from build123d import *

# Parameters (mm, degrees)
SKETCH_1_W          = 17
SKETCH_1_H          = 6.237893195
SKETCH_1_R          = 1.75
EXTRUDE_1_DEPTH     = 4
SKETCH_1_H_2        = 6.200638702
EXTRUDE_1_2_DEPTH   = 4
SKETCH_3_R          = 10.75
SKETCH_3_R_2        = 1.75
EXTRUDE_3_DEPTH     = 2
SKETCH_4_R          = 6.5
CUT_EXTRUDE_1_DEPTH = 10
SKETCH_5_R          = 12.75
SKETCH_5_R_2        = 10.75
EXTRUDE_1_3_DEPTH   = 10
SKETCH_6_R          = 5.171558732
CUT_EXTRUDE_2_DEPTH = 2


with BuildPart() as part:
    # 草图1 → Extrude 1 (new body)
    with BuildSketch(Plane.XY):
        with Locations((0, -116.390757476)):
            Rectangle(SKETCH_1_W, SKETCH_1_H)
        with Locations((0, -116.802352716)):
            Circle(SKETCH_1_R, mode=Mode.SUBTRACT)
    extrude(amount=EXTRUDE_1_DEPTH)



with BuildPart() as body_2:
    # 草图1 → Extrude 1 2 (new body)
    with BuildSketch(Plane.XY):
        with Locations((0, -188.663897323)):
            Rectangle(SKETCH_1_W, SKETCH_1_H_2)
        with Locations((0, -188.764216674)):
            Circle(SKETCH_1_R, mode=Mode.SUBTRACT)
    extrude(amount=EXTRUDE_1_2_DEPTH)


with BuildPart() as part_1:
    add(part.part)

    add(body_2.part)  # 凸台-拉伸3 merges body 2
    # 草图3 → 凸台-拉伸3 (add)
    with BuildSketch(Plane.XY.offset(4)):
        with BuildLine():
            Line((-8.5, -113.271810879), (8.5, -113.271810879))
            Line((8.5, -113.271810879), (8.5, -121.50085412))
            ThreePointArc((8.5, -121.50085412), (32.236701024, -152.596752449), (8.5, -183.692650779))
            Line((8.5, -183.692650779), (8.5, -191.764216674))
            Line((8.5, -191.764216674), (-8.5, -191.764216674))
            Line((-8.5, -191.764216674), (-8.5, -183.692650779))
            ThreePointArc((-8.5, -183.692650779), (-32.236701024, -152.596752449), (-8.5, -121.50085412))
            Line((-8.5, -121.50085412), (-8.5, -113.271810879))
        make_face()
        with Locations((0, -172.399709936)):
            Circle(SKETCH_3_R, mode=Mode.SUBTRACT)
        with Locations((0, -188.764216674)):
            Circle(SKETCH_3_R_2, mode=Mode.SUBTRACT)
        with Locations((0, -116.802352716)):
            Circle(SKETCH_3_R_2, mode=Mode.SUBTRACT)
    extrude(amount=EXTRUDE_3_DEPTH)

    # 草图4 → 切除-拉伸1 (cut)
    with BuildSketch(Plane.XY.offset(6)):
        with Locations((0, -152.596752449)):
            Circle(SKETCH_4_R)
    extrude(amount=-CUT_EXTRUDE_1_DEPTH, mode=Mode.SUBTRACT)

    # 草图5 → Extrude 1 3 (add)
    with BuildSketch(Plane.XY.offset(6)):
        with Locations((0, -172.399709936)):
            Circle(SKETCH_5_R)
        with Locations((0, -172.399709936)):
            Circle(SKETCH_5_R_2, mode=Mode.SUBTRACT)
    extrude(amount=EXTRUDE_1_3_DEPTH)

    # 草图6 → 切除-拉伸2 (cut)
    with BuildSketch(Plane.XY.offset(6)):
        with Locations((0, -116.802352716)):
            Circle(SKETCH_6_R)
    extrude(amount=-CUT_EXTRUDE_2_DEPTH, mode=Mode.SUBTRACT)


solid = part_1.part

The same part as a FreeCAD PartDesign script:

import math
import FreeCAD as App
import Part
import Sketcher

doc = App.newDocument("Part")
params = doc.addObject("Spreadsheet::Sheet", "Params")
for row, (alias, value) in enumerate([
    ("sketch1_diameter", "3.5 mm"),
    ("sketch1_width", "17 mm"),
    ("pad1_length", "4 mm"),
    ("sketch2_diameter", "3.5 mm"),
    ("sketch2_width", "17 mm"),
    ("pad2_length", "4 mm"),
    ("sketch3_diameter", "3.5 mm"),
    ("sketch3_diameter2", "21.5 mm"),
    ("sketch3_width", "17 mm"),
    ("pad3_length", "2 mm"),
    ("sketch4_diameter", "13 mm"),
    ("pocket1_length", "10 mm"),
    ("sketch5_diameter", "25.5 mm"),
    ("sketch5_diameter2", "21.5 mm"),
    ("pad4_length", "10 mm"),
    ("pocket2_length", "2 mm"),
], start=1):
    params.set(f"A{row}", alias)
    params.set(f"B{row}", "=" + value)
    params.setAlias(f"B{row}", alias)

body = doc.addObject("PartDesign::Body", "Body")

sketch1 = body.newObject("Sketcher::SketchObject", "Sketch")
sketch1.AttachmentSupport = (doc.getObject("XY_Plane"), [""])
sketch1.MapMode = "FlatFace"
sketch1.addGeometry([
    Part.LineSegment(App.Vector(-8.5, -113.3, 0), App.Vector(-8.5, -119.5, 0)),
    Part.LineSegment(App.Vector(-8.5, -119.5, 0), App.Vector(8.5, -119.5, 0)),
    Part.LineSegment(App.Vector(8.5, -119.5, 0), App.Vector(8.5, -113.3, 0)),
    Part.LineSegment(App.Vector(8.5, -113.3, 0), App.Vector(-8.5, -113.3, 0)),
    Part.Circle(App.Vector(0, -116.8, 0), App.Vector(0, 0, 1), 1.8),
], False)
sketch1.addConstraint([
    Sketcher.Constraint("Coincident", 0, 2, 1, 1),
    Sketcher.Constraint("Coincident", 1, 2, 2, 1),
    Sketcher.Constraint("Coincident", 2, 2, 3, 1),
    Sketcher.Constraint("Coincident", 3, 2, 0, 1),
    Sketcher.Constraint("Vertical", 0),
    Sketcher.Constraint("Horizontal", 1),
    Sketcher.Constraint("Vertical", 2),
    Sketcher.Constraint("Horizontal", 3),
    Sketcher.Constraint("PointOnObject", 4, 3, -2),
    Sketcher.Constraint("Diameter", 4, 3.5),
    Sketcher.Constraint("DistanceX", 1, 1, 1, 2, 17.0),
    Sketcher.Constraint("DistanceX", 0, 2, -1, 1, 8.5),
    Sketcher.Constraint("DistanceY", 0, 2, 0, 1, 6.237893),
    Sketcher.Constraint("DistanceY", 2, 2, -1, 1, 113.271811),
    Sketcher.Constraint("DistanceY", 0, 2, 4, 3, 2.707351),
])
sketch1.setExpression("Constraints[9]", "Params.sketch1_diameter")
sketch1.setExpression("Constraints[10]", "Params.sketch1_width")
pad1 = body.newObject("PartDesign::Pad", "Pad")
pad1.Profile = sketch1
pad1.setExpression("Length", "Params.pad1_length")
body2 = doc.addObject("PartDesign::Body", "Body001")

sketch2 = body2.newObject("Sketcher::SketchObject", "Sketch001")
sketch2.AttachmentSupport = (doc.getObject("XY_Plane001"), [""])
sketch2.MapMode = "FlatFace"
sketch2.addGeometry([
    Part.LineSegment(App.Vector(-8.5, -185.6, 0), App.Vector(-8.5, -191.8, 0)),
    Part.LineSegment(App.Vector(-8.5, -191.8, 0), App.Vector(8.5, -191.8, 0)),
    Part.LineSegment(App.Vector(8.5, -191.8, 0), App.Vector(8.5, -185.6, 0)),
    Part.LineSegment(App.Vector(8.5, -185.6, 0), App.Vector(-8.5, -185.6, 0)),
    Part.Circle(App.Vector(0, -188.8, 0), App.Vector(0, 0, 1), 1.8),
], False)
sketch2.addConstraint([
    Sketcher.Constraint("Coincident", 0, 2, 1, 1),
    Sketcher.Constraint("Coincident", 1, 2, 2, 1),
    Sketcher.Constraint("Coincident", 2, 2, 3, 1),
    Sketcher.Constraint("Coincident", 3, 2, 0, 1),
    Sketcher.Constraint("Vertical", 0),
    Sketcher.Constraint("Horizontal", 1),
    Sketcher.Constraint("Vertical", 2),
    Sketcher.Constraint("Horizontal", 3),
    Sketcher.Constraint("PointOnObject", 4, 3, -2),
    Sketcher.Constraint("Diameter", 4, 3.5),
    Sketcher.Constraint("DistanceX", 1, 1, 1, 2, 17.0),
    Sketcher.Constraint("DistanceY", 0, 2, 4, 3, 3.0),
    Sketcher.Constraint("DistanceX", 0, 2, -1, 1, 8.5),
    Sketcher.Constraint("DistanceY", 0, 2, 0, 1, 6.200639),
    Sketcher.Constraint("DistanceY", 4, 3, -1, 1, 188.764217),
])
sketch2.setExpression("Constraints[9]", "Params.sketch2_diameter")
sketch2.setExpression("Constraints[10]", "Params.sketch2_width")
pad2 = body2.newObject("PartDesign::Pad", "Pad001")
pad2.Profile = sketch2
pad2.setExpression("Length", "Params.pad2_length")
body.AllowCompound = True
doc.recompute()

boolean = body.newObject("PartDesign::Boolean", "Boolean")
boolean.Type = "Fuse"
boolean.addObjects([body2])

sketch3 = body.newObject("Sketcher::SketchObject", "Sketch002")
sketch3.AttachmentSupport = (doc.getObject("XY_Plane"), [""])
sketch3.MapMode = "FlatFace"
sketch3.AttachmentOffset = App.Placement(App.Vector(0, 0, 4), App.Rotation())
sketch3.addGeometry([
    Part.LineSegment(App.Vector(8.5, -113.3, 0), App.Vector(-8.5, -113.3, 0)),
    Part.LineSegment(App.Vector(-8.5, -113.3, 0), App.Vector(-8.5, -121.5, 0)),
    Part.ArcOfCircle(Part.Circle(App.Vector(0, -152.6, 0), App.Vector(0, 0, 1), 32.2), math.radians(105), math.radians(255)),
    Part.LineSegment(App.Vector(-8.5, -183.7, 0), App.Vector(-8.5, -191.8, 0)),
    Part.LineSegment(App.Vector(-8.5, -191.8, 0), App.Vector(8.5, -191.8, 0)),
    Part.LineSegment(App.Vector(8.5, -191.8, 0), App.Vector(8.5, -183.7, 0)),
    Part.ArcOfCircle(Part.Circle(App.Vector(0, -152.6, 0), App.Vector(0, 0, 1), 32.2), math.radians(-75), math.radians(75)),
    Part.LineSegment(App.Vector(8.5, -121.5, 0), App.Vector(8.5, -113.3, 0)),
    Part.Circle(App.Vector(0, -188.8, 0), App.Vector(0, 0, 1), 1.8),
    Part.Circle(App.Vector(0, -172.4, 0), App.Vector(0, 0, 1), 10.8),
    Part.Circle(App.Vector(0, -116.8, 0), App.Vector(0, 0, 1), 1.8),
], False)
sketch3.addConstraint([
    Sketcher.Constraint("Coincident", 0, 2, 1, 1),
    Sketcher.Constraint("Coincident", 1, 2, 2, 1),
    Sketcher.Constraint("Coincident", 2, 2, 3, 1),
    Sketcher.Constraint("Coincident", 3, 2, 4, 1),
    Sketcher.Constraint("Coincident", 4, 2, 5, 1),
    Sketcher.Constraint("Coincident", 5, 2, 6, 1),
    Sketcher.Constraint("Coincident", 6, 2, 7, 1),
    Sketcher.Constraint("Coincident", 7, 2, 0, 1),
    Sketcher.Constraint("Horizontal", 0),
    Sketcher.Constraint("Vertical", 1),
    Sketcher.Constraint("Vertical", 3),
    Sketcher.Constraint("Horizontal", 4),
    Sketcher.Constraint("Vertical", 5),
    Sketcher.Constraint("Vertical", 7),
    Sketcher.Constraint("Coincident", 6, 3, 2, 3),
    Sketcher.Constraint("Equal", 2, 6),
    Sketcher.Constraint("Equal", 8, 10),
    Sketcher.Constraint("Symmetric", 2, 2, 5, 2, -2),
    Sketcher.Constraint("PointOnObject", 8, 3, -2),
    Sketcher.Constraint("PointOnObject", 9, 3, -2),
    Sketcher.Constraint("PointOnObject", 10, 3, -2),
    Sketcher.Constraint("Horizontal", 1, 2, 6, 2),
    Sketcher.Constraint("Vertical", 1, 2, 2, 2),
    Sketcher.Constraint("Diameter", 8, 3.5),
    Sketcher.Constraint("Diameter", 9, 21.5),
    Sketcher.Constraint("DistanceX", 0, 2, 0, 1, 17.0),
    Sketcher.Constraint("DistanceY", 3, 2, 8, 3, 3.0),
    Sketcher.Constraint("Radius", 2, 32.236701),
    Sketcher.Constraint("DistanceY", 2, 3, 10, 3, 35.7944),
    Sketcher.Constraint("DistanceY", 9, 3, 0, 2, 59.127899),
    Sketcher.Constraint("DistanceY", 1, 2, 1, 1, 8.229043),
    Sketcher.Constraint("DistanceY", 3, 2, 3, 1, 8.071566),
    Sketcher.Constraint("DistanceY", 9, 3, -1, 1, 172.39971),
])
sketch3.setExpression("Constraints[23]", "Params.sketch3_diameter")
sketch3.setExpression("Constraints[24]", "Params.sketch3_diameter2")
sketch3.setExpression("Constraints[25]", "Params.sketch3_width")
pad3 = body.newObject("PartDesign::Pad", "Pad002")
pad3.Profile = sketch3
pad3.setExpression("Length", "Params.pad3_length")

sketch4 = body.newObject("Sketcher::SketchObject", "Sketch003")
sketch4.AttachmentSupport = (doc.getObject("XY_Plane"), [""])
sketch4.MapMode = "FlatFace"
sketch4.AttachmentOffset = App.Placement(App.Vector(0, 0, 6), App.Rotation())
sketch4.addGeometry(Part.Circle(App.Vector(0, -153, 0), App.Vector(0, 0, 1), 6), False)
sketch4.addConstraint([
    Sketcher.Constraint("PointOnObject", 0, 3, -2),
    Sketcher.Constraint("Diameter", 0, 13.0),
    Sketcher.Constraint("DistanceY", 0, 3, -1, 1, 152.596752),
])
sketch4.setExpression("Constraints[1]", "Params.sketch4_diameter")
pocket1 = body.newObject("PartDesign::Pocket", "Pocket")
pocket1.Profile = sketch4
pocket1.setExpression("Length", "Params.pocket1_length")

sketch5 = body.newObject("Sketcher::SketchObject", "Sketch004")
sketch5.AttachmentSupport = (doc.getObject("XY_Plane"), [""])
sketch5.MapMode = "FlatFace"
sketch5.AttachmentOffset = App.Placement(App.Vector(0, 0, 6), App.Rotation())
sketch5.addGeometry([
    Part.Circle(App.Vector(0, -172, 0), App.Vector(0, 0, 1), 13),
    Part.Circle(App.Vector(0, -172, 0), App.Vector(0, 0, 1), 11),
], False)
sketch5.addConstraint([
    Sketcher.Constraint("Coincident", 1, 3, 0, 3),
    Sketcher.Constraint("PointOnObject", 0, 3, -2),
    Sketcher.Constraint("Diameter", 0, 25.5),
    Sketcher.Constraint("Diameter", 1, 21.5),
    Sketcher.Constraint("DistanceY", 0, 3, -1, 1, 172.39971),
])
sketch5.setExpression("Constraints[2]", "Params.sketch5_diameter")
sketch5.setExpression("Constraints[3]", "Params.sketch5_diameter2")
pad4 = body.newObject("PartDesign::Pad", "Pad003")
pad4.Profile = sketch5
pad4.setExpression("Length", "Params.pad4_length")

sketch6 = body.newObject("Sketcher::SketchObject", "Sketch005")
sketch6.AttachmentSupport = (doc.getObject("XY_Plane"), [""])
sketch6.MapMode = "FlatFace"
sketch6.AttachmentOffset = App.Placement(App.Vector(0, 0, 6), App.Rotation())
sketch6.addGeometry(Part.Circle(App.Vector(0, -117, 0), App.Vector(0, 0, 1), 5), False)
sketch6.addConstraint([
    Sketcher.Constraint("PointOnObject", 0, 3, -2),
    Sketcher.Constraint("Diameter", 0, 10.343117),
    Sketcher.Constraint("DistanceY", 0, 3, -1, 1, 116.802353),
])
pocket2 = body.newObject("PartDesign::Pocket", "Pocket001")
pocket2.Profile = sketch6
pocket2.setExpression("Length", "Params.pocket2_length")

doc.recompute()
